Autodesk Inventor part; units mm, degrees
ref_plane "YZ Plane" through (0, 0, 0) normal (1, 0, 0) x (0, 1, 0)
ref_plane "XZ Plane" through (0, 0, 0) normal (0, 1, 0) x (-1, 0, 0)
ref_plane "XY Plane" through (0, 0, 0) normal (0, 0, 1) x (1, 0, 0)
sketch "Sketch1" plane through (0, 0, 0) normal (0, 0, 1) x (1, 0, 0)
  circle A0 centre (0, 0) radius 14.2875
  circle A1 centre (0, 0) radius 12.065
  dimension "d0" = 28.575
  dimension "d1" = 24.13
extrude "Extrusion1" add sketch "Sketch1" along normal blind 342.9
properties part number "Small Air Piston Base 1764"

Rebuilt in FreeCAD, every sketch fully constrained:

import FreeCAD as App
import Part
import Sketcher
Q = App.Units.Quantity

doc = App.newDocument("Part")
body = doc.addObject("PartDesign::Body", "Body")

sketch1 = body.newObject("Sketcher::SketchObject", "Sketch")
sketch1.AttachmentSupport = (doc.getObject("XY_Plane"), [""])
sketch1.MapMode = "FlatFace"
sketch1.addGeometry([
    Part.Circle(App.Vector(0, 0, 0), App.Vector(0, 0, 1), 14),
    Part.Circle(App.Vector(0, 0, 0), App.Vector(0, 0, 1), 12),
], False)
sketch1.addConstraint([
    Sketcher.Constraint("Coincident", 0, 3, -1, 1),
    Sketcher.Constraint("Coincident", 1, 3, -1, 1),
    Sketcher.Constraint("Diameter", 1, Q("0.95 in")),
    Sketcher.Constraint("Diameter", 0, Q("1.125 in")),
])
pad1 = body.newObject("PartDesign::Pad", "Pad")
pad1.Profile = sketch1
pad1.Length = Q("13.5 in")

doc.recompute()
